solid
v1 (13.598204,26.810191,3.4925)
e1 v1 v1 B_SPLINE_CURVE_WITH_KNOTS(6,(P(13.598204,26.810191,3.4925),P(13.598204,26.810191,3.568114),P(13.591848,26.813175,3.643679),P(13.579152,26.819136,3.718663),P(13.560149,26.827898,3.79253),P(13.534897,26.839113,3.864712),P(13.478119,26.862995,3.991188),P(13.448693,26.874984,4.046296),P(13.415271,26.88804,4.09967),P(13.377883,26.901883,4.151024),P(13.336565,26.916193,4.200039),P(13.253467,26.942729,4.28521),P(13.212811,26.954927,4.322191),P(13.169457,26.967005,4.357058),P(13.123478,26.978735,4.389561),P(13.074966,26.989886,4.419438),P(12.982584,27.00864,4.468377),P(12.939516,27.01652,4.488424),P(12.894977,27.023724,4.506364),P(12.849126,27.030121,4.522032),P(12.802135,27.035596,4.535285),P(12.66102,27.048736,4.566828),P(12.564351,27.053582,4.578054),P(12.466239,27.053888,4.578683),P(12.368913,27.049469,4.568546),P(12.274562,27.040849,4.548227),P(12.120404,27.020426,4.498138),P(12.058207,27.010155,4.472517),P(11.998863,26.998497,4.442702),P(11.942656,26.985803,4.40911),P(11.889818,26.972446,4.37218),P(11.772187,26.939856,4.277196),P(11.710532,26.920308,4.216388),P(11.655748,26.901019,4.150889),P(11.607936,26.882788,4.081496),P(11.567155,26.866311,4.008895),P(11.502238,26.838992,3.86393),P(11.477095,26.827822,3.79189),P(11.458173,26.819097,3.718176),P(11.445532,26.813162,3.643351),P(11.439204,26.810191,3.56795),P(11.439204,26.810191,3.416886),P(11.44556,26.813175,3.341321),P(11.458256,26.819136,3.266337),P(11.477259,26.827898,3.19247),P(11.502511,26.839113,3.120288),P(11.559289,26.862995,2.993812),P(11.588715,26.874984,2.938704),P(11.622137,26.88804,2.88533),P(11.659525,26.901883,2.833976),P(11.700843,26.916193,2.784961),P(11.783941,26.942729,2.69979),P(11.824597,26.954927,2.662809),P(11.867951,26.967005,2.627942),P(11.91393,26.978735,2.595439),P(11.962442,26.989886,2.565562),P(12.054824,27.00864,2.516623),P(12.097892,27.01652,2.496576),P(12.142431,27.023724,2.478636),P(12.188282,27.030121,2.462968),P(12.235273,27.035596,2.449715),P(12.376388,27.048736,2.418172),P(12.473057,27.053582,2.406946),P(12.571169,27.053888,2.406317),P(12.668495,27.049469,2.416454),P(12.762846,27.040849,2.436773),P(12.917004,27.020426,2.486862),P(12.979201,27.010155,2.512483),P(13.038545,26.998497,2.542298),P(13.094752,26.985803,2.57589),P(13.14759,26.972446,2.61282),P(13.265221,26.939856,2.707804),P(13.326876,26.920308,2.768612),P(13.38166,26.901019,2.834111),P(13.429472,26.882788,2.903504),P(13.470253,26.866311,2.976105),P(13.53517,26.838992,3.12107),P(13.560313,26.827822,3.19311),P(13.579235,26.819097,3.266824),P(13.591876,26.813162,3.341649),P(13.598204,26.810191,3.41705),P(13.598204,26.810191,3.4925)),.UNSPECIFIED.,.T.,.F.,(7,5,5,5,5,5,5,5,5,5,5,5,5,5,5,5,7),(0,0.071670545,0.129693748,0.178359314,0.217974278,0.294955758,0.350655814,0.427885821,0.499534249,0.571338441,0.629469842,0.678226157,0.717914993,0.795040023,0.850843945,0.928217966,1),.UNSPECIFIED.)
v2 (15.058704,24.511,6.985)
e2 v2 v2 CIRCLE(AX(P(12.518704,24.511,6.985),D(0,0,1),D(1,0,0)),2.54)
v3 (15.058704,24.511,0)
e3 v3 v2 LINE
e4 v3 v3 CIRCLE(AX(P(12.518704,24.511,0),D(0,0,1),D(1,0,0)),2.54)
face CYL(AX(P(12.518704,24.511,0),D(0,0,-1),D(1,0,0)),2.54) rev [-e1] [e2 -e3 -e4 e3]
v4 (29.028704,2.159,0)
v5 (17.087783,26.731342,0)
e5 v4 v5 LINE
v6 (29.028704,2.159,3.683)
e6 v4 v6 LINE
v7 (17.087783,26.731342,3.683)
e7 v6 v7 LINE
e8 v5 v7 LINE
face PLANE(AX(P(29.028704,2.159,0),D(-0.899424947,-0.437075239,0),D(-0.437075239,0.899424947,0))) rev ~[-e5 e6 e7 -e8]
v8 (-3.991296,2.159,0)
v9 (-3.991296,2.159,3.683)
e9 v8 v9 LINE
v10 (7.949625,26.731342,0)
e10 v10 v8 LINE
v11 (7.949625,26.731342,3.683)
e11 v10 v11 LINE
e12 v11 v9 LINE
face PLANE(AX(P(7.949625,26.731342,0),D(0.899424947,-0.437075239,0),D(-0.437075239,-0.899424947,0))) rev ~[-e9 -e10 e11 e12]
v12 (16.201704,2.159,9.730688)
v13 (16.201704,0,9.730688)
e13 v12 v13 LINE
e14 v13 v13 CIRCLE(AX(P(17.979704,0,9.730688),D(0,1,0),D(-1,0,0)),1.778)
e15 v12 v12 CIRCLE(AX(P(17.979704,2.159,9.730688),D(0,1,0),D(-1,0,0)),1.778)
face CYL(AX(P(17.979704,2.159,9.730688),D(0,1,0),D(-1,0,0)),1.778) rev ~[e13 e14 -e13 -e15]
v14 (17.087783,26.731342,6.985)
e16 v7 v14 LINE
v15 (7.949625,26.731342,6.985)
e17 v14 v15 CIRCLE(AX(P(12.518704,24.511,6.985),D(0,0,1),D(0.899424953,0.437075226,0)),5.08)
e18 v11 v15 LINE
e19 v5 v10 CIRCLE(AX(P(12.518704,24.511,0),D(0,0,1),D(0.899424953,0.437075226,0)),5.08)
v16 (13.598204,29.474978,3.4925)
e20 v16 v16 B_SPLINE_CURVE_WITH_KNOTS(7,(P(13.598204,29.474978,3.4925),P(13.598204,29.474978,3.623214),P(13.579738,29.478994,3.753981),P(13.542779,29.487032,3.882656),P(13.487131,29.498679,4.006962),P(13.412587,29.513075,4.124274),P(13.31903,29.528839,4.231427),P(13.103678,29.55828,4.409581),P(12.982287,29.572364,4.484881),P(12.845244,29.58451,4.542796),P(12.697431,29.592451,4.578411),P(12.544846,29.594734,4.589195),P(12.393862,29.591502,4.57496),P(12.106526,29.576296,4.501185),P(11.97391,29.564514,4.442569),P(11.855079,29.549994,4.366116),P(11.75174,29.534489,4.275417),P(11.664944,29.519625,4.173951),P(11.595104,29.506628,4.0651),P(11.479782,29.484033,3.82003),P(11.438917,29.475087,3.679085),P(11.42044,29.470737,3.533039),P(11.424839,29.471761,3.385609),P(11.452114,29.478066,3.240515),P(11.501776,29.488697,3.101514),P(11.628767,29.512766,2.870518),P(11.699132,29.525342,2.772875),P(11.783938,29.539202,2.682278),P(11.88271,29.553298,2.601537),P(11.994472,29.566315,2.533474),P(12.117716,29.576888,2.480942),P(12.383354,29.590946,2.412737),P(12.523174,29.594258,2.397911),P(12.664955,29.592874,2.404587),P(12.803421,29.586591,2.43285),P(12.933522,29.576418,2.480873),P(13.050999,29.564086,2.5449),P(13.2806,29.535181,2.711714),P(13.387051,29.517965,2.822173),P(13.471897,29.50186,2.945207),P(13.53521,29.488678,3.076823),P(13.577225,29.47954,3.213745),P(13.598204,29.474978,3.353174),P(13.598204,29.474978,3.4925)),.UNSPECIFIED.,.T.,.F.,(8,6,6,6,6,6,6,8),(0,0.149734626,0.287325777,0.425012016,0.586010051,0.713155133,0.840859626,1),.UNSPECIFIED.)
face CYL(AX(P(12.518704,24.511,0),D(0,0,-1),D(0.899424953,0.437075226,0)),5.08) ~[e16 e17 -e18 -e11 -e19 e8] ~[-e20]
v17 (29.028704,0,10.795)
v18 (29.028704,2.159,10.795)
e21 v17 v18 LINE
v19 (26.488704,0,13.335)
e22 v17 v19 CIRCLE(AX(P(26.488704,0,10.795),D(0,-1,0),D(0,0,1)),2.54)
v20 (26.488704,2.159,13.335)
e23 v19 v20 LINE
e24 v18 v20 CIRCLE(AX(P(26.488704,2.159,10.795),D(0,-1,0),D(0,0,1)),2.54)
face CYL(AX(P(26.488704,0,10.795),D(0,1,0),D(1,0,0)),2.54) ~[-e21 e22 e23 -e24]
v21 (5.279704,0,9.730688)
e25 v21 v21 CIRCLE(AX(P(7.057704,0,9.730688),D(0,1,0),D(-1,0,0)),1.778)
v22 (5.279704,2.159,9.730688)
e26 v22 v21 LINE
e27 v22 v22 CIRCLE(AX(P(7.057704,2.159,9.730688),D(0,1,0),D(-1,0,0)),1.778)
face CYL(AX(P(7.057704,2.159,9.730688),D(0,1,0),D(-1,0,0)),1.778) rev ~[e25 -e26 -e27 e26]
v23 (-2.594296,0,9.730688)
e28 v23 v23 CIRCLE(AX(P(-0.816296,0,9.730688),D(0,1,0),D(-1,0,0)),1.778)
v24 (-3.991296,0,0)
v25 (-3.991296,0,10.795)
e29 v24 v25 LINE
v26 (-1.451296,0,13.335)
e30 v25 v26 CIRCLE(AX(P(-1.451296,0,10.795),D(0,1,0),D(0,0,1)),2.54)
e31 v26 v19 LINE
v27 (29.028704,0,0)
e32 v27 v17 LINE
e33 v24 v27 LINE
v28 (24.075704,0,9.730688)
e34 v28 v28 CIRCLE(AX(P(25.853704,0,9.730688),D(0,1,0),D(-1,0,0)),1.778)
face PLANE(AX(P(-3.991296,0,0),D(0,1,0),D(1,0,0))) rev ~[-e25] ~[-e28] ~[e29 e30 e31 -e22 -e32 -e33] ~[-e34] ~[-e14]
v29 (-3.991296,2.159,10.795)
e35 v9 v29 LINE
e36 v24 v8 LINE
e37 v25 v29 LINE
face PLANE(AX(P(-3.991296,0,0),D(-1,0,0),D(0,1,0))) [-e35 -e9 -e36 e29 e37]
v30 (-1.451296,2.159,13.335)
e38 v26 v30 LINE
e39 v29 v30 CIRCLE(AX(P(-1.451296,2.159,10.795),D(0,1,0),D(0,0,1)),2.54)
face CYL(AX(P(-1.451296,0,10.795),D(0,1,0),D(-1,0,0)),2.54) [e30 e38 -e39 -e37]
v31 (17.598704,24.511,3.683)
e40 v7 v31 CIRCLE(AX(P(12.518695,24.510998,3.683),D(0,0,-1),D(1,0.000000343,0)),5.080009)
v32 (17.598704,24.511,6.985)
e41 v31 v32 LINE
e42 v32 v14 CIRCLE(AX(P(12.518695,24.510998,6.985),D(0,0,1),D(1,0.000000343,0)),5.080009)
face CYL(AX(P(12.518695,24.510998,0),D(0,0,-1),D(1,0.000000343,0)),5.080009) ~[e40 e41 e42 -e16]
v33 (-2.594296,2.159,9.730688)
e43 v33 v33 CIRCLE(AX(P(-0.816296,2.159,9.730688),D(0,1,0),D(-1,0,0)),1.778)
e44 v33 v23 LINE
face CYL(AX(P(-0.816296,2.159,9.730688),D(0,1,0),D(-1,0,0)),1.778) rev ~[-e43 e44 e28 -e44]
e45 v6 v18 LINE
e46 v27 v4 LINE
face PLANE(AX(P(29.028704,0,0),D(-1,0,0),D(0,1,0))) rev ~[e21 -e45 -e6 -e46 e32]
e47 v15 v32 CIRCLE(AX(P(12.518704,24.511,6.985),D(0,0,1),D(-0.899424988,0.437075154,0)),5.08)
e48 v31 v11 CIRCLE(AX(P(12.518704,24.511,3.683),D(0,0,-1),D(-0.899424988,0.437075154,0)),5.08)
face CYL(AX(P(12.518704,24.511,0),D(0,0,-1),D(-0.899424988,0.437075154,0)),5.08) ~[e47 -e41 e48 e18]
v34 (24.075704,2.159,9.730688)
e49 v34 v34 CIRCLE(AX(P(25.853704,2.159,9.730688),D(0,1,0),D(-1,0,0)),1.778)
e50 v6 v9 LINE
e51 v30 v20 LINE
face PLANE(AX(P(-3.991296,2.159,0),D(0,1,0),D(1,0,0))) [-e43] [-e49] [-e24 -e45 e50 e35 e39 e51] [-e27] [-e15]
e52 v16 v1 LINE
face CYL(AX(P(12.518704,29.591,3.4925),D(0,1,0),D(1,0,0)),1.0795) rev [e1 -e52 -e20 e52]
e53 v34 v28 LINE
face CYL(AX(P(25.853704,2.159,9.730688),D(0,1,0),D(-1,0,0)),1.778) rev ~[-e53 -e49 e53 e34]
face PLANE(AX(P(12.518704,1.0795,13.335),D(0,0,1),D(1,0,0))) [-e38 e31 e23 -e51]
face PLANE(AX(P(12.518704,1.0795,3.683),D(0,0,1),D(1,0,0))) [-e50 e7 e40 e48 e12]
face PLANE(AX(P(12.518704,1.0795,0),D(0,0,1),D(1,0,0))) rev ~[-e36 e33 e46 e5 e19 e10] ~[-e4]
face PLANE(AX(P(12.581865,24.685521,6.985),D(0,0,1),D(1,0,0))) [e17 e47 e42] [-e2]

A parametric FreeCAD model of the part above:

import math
import FreeCAD as App
import Part
import Sketcher
Q = App.Units.Quantity


def edges_at(feature, points):
    """Names of the edges that pass closest to the given points."""
    edges = feature.Shape.Edges
    near = lambda p: min(range(len(edges)), key=lambda i: edges[i].distToShape(Part.Vertex(*p))[0])
    return sorted({f"Edge{near(p) + 1}" for p in points})

doc = App.newDocument("Part")
body = doc.addObject("PartDesign::Body", "Body")

sketch1 = doc.addObject("Sketcher::SketchObject", "Sketch")
body.addObject(sketch1)
sketch1.AttachmentSupport = (doc.XY_Plane, [""])
sketch1.MapMode = "FlatFace"
sketch1.addGeometry([
    Part.LineSegment(App.Vector(-3.991296, 2.159, 0), App.Vector(-3.991296, 0, 0)),
    Part.LineSegment(App.Vector(-3.991296, 0, 0), App.Vector(29.028704, 0, 0)),
    Part.LineSegment(App.Vector(29.028704, 0, 0), App.Vector(29.028704, 2.159, 0)),
    Part.LineSegment(App.Vector(29.028704, 2.159, 0), App.Vector(17.087783, 26.731342, 0)),
    Part.ArcOfCircle(Part.Circle(App.Vector(12.518704, 24.511, 0), App.Vector(0, 0, 1), 5.08), math.radians(25.917417), math.radians(154.082583)),
    Part.LineSegment(App.Vector(7.949625, 26.731342, 0), App.Vector(-3.991296, 2.159, 0)),
    Part.Circle(App.Vector(12.518704, 24.511, 0), App.Vector(0, 0, 1), 2.54),
], False)
sketch1.addConstraint([
    Sketcher.Constraint("Coincident", 0, 2, 1, 1),
    Sketcher.Constraint("Coincident", 1, 2, 2, 1),
    Sketcher.Constraint("Coincident", 2, 2, 3, 1),
    Sketcher.Constraint("Tangent", 3, 2, 4, 1),
    Sketcher.Constraint("Tangent", 4, 2, 5, 1),
    Sketcher.Constraint("Coincident", 5, 2, 0, 1),
    Sketcher.Constraint("Vertical", 0),
    Sketcher.Constraint("Horizontal", 1),
    Sketcher.Constraint("Vertical", 2),
    Sketcher.Constraint("Coincident", 6, 3, 4, 3),
    Sketcher.Constraint("PointOnObject", 0, 2, -1),
    Sketcher.Constraint("Horizontal", 3, 2, 4, 2),
    Sketcher.Constraint("Horizontal", 2, 2, 5, 2),
    Sketcher.Constraint("Diameter", 6, Q("0.2 in")),
    Sketcher.Constraint("Radius", 4, Q("0.2 in")),
    Sketcher.Constraint("DistanceX", 1, 1, 1, 2, Q("1.3 in")),
    Sketcher.Constraint("DistanceY", 0, 2, 0, 1, Q("0.085 in")),
    Sketcher.Constraint("DistanceY", 2, 2, 4, 3, Q("0.88 in")),
    Sketcher.Constraint("DistanceX", -1, 1, 4, 3, Q("12.518704 mm")),
])
pad1 = doc.addObject("PartDesign::Pad", "Pad")
body.addObject(pad1)
pad1.Profile = sketch1
pad1.Length = Q("0.145 in")

sketch2 = doc.addObject("Sketcher::SketchObject", "Sketch001")
body.addObject(sketch2)
sketch2.AttachmentSupport = (doc.XY_Plane, [""])
sketch2.MapMode = "FlatFace"
sketch2.addGeometry([
    Part.LineSegment(App.Vector(-3.991296, 2.159, 0), App.Vector(-3.991296, 0, 0)),
    Part.LineSegment(App.Vector(-3.991296, 0, 0), App.Vector(29.028704, 0, 0)),
    Part.LineSegment(App.Vector(29.028704, 0, 0), App.Vector(29.028704, 2.159, 0)),
    Part.LineSegment(App.Vector(29.028704, 2.159, 0), App.Vector(-3.991296, 2.159, 0)),
], False)
sketch2.addConstraint([
    Sketcher.Constraint("Coincident", 0, 2, 1, 1),
    Sketcher.Constraint("Coincident", 1, 2, 2, 1),
    Sketcher.Constraint("Coincident", 2, 2, 3, 1),
    Sketcher.Constraint("Coincident", 3, 2, 0, 1),
    Sketcher.Constraint("Vertical", 0),
    Sketcher.Constraint("Horizontal", 1),
    Sketcher.Constraint("Vertical", 2),
    Sketcher.Constraint("Horizontal", 3),
    Sketcher.Constraint("PointOnObject", 0, 2, -1),
    Sketcher.Constraint("DistanceX", 1, 1, 1, 2, Q("1.3 in")),
    Sketcher.Constraint("DistanceY", 0, 2, 0, 1, Q("0.085 in")),
    Sketcher.Constraint("DistanceX", 0, 2, -1, 1, Q("3.991296 mm")),
])
pad2 = doc.addObject("PartDesign::Pad", "Pad001")
body.addObject(pad2)
pad2.Profile = sketch2
pad2.Length = Q("0.525 in")

sketch3 = doc.addObject("Sketcher::SketchObject", "Sketch002")
body.addObject(sketch3)
sketch3.AttachmentSupport = (doc.XY_Plane, [""])
sketch3.MapMode = "FlatFace"
sketch3.addGeometry([
    Part.ArcOfCircle(Part.Circle(App.Vector(12.518704, 24.511, 0), App.Vector(0, 0, 1), 5.08), math.radians(25.917417), math.radians(154.082583)),
    Part.ArcOfCircle(Part.Circle(App.Vector(12.518704, 24.511, 0), App.Vector(0, 0, 1), 5.08), math.radians(154.082587), math.radians(359.999998)),
    Part.ArcOfCircle(Part.Circle(App.Vector(12.518695, 24.510998, 0), App.Vector(0, 0, 1), 5.080009), math.radians(0.00002), math.radians(25.917388)),
    Part.Circle(App.Vector(12.518704, 24.511, 0), App.Vector(0, 0, 1), 2.54),
], False)
sketch3.addConstraint([
    Sketcher.Constraint("Tangent", 0, 2, 1, 1),
    Sketcher.Constraint("Tangent", 1, 2, 2, 1),
    Sketcher.Constraint("Tangent", 2, 2, 0, 1),
    Sketcher.Constraint("Coincident", 3, 3, 0, 3),
    Sketcher.Constraint("Horizontal", 3, 3, 1, 2),
    Sketcher.Constraint("Horizontal", 0, 2, 2, 2),
    Sketcher.Constraint("Diameter", 3, Q("0.2 in")),
    Sketcher.Constraint("Radius", 0, Q("0.2 in")),
    Sketcher.Constraint("DistanceY", -1, 1, 0, 3, Q("0.965 in")),
    Sketcher.Constraint("DistanceY", -1, 1, 0, 2, Q("26.731342 mm")),
    Sketcher.Constraint("DistanceX", -1, 1, 0, 3, Q("12.518704 mm")),
])
pad3 = doc.addObject("PartDesign::Pad", "Pad002")
body.addObject(pad3)
pad3.Profile = sketch3
pad3.Length = Q("0.275 in")

sketch4 = doc.addObject("Sketcher::SketchObject", "Sketch003")
body.addObject(sketch4)
sketch4.AttachmentSupport = (doc.XZ_Plane, [""])
sketch4.MapMode = "FlatFace"
sketch4.AttachmentOffset = App.Placement(App.Vector(0, 0, -0.085 * 25.4), App.Rotation())
sketch4.addGeometry([
    Part.Circle(App.Vector(-0.816296, 9.730688, 0), App.Vector(0, 0, 1), 1.778),
    Part.Circle(App.Vector(25.853704, 9.730688, 0), App.Vector(0, 0, 1), 1.778),
    Part.Circle(App.Vector(17.979704, 9.730688, 0), App.Vector(0, 0, 1), 1.778),
    Part.Circle(App.Vector(7.057704, 9.730688, 0), App.Vector(0, 0, 1), 1.778),
], False)
sketch4.addConstraint([
    Sketcher.Constraint("Equal", 0, 1),
    Sketcher.Constraint("Equal", 1, 2),
    Sketcher.Constraint("Equal", 2, 3),
    Sketcher.Constraint("Horizontal", 0, 3, 1, 3),
    Sketcher.Constraint("Horizontal", 1, 3, 2, 3),
    Sketcher.Constraint("Horizontal", 2, 3, 3, 3),
    Sketcher.Constraint("Diameter", 0, Q("0.14 in")),
    Sketcher.Constraint("DistanceX", 0, 3, 1, 3, Q("1.05 in")),
    Sketcher.Constraint("DistanceX", 2, 3, 1, 3, Q("0.31 in")),
    Sketcher.Constraint("DistanceX", 0, 3, 3, 3, Q("0.31 in")),
    Sketcher.Constraint("DistanceY", -1, 1, 0, 3, Q("9.730688 mm")),
    Sketcher.Constraint("DistanceX", 0, 3, -1, 1, Q("0.816296 mm")),
])
pocket1 = doc.addObject("PartDesign::Pocket", "Pocket")
body.addObject(pocket1)
pocket1.Profile = sketch4
pocket1.Length = Q("1 in")
pocket1.Reversed = True
doc.recompute()

fillet = doc.addObject("PartDesign::Fillet", "Fillet")
body.addObject(fillet)
fillet.Base = (pocket1, edges_at(pocket1, [(-3.991, 1.079, 13.335), (29.029, 1.079, 13.335)]))
fillet.Radius = Q("0.1 in")

sketch5 = doc.addObject("Sketcher::SketchObject", "Sketch004")
body.addObject(sketch5)
sketch5.AttachmentSupport = (doc.XZ_Plane, [""])
sketch5.MapMode = "FlatFace"
sketch5.AttachmentOffset = App.Placement(App.Vector(0, 0, -1.165 * 25.4), App.Rotation())
sketch5.addGeometry(Part.Circle(App.Vector(12.518704, 3.4925, 0), App.Vector(0, 0, 1), 1.0795), False)
sketch5.addConstraint([
    Sketcher.Constraint("Diameter", 0, Q("0.085 in")),
    Sketcher.Constraint("DistanceY", -1, 1, 0, 3, Q("0.1375 in")),
    Sketcher.Constraint("DistanceX", -1, 1, 0, 3, Q("12.518704 mm")),
])
pocket2 = doc.addObject("PartDesign::Pocket", "Pocket001")
body.addObject(pocket2)
pocket2.Profile = sketch5
pocket2.Length = Q("0.15 in")
pocket2.Reversed = True

doc.recompute()
